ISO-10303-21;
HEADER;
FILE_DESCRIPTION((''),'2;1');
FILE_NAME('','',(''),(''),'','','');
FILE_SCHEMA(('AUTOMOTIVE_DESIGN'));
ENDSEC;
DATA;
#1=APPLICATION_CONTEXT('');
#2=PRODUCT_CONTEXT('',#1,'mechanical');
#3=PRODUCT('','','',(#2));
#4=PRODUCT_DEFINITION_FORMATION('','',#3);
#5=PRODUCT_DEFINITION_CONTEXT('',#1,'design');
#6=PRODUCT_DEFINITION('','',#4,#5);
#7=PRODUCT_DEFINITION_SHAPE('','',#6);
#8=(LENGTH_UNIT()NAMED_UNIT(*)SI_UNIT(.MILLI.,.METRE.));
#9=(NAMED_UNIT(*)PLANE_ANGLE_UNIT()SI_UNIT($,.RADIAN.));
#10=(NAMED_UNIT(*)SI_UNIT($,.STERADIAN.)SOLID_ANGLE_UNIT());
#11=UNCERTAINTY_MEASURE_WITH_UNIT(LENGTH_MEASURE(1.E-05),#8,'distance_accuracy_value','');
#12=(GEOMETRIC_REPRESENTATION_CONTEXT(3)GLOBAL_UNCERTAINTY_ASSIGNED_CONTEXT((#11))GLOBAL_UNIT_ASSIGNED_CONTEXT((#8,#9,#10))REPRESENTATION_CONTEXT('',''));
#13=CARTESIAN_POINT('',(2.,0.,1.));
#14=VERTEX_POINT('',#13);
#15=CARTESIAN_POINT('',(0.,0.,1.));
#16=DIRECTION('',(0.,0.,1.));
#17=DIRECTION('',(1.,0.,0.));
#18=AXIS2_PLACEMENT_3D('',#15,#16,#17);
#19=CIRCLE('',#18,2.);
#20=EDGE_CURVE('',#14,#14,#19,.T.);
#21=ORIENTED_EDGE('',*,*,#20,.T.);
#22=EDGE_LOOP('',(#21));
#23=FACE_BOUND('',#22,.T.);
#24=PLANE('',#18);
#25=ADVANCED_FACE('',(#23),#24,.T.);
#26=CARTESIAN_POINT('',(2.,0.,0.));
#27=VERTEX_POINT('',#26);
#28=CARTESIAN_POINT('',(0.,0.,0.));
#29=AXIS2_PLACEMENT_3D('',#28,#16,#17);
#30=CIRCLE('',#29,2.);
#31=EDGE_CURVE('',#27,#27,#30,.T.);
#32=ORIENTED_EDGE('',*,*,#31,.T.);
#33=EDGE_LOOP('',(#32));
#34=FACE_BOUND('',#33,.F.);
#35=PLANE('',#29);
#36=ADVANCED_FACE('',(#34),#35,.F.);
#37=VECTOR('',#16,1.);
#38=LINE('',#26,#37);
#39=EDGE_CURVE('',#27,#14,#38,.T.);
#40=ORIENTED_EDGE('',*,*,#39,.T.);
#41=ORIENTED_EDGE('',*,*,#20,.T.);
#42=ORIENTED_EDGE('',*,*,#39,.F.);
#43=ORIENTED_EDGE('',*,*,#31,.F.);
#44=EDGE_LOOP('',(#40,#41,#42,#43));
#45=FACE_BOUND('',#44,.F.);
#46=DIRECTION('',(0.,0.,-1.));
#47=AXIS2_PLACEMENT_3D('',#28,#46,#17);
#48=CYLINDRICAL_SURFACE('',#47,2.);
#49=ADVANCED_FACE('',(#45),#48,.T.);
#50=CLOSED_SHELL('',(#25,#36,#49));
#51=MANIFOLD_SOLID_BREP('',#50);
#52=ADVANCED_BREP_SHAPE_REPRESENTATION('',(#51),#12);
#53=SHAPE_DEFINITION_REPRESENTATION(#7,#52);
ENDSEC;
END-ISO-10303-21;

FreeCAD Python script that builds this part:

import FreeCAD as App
import Part
import Sketcher

doc = App.newDocument("Part")
body = doc.addObject("PartDesign::Body", "Body")

# Sketch on XY plane
sketch1 = body.newObject("Sketcher::SketchObject", "Sketch")
sketch1.AttachmentSupport = (doc.getObject("XY_Plane"), [""])
sketch1.MapMode = "FlatFace"
sketch1.addGeometry(Part.Circle(App.Vector(0, 0, 0), App.Vector(0, 0, 1), 2), False)
sketch1.addConstraint(Sketcher.Constraint("Coincident", 0, 3, -1, 1))
sketch1.addConstraint(Sketcher.Constraint("Diameter", 0, 4.0))
pad1 = body.newObject("PartDesign::Pad", "Pad")
pad1.Profile = sketch1
pad1.Length = 1

doc.recompute()
